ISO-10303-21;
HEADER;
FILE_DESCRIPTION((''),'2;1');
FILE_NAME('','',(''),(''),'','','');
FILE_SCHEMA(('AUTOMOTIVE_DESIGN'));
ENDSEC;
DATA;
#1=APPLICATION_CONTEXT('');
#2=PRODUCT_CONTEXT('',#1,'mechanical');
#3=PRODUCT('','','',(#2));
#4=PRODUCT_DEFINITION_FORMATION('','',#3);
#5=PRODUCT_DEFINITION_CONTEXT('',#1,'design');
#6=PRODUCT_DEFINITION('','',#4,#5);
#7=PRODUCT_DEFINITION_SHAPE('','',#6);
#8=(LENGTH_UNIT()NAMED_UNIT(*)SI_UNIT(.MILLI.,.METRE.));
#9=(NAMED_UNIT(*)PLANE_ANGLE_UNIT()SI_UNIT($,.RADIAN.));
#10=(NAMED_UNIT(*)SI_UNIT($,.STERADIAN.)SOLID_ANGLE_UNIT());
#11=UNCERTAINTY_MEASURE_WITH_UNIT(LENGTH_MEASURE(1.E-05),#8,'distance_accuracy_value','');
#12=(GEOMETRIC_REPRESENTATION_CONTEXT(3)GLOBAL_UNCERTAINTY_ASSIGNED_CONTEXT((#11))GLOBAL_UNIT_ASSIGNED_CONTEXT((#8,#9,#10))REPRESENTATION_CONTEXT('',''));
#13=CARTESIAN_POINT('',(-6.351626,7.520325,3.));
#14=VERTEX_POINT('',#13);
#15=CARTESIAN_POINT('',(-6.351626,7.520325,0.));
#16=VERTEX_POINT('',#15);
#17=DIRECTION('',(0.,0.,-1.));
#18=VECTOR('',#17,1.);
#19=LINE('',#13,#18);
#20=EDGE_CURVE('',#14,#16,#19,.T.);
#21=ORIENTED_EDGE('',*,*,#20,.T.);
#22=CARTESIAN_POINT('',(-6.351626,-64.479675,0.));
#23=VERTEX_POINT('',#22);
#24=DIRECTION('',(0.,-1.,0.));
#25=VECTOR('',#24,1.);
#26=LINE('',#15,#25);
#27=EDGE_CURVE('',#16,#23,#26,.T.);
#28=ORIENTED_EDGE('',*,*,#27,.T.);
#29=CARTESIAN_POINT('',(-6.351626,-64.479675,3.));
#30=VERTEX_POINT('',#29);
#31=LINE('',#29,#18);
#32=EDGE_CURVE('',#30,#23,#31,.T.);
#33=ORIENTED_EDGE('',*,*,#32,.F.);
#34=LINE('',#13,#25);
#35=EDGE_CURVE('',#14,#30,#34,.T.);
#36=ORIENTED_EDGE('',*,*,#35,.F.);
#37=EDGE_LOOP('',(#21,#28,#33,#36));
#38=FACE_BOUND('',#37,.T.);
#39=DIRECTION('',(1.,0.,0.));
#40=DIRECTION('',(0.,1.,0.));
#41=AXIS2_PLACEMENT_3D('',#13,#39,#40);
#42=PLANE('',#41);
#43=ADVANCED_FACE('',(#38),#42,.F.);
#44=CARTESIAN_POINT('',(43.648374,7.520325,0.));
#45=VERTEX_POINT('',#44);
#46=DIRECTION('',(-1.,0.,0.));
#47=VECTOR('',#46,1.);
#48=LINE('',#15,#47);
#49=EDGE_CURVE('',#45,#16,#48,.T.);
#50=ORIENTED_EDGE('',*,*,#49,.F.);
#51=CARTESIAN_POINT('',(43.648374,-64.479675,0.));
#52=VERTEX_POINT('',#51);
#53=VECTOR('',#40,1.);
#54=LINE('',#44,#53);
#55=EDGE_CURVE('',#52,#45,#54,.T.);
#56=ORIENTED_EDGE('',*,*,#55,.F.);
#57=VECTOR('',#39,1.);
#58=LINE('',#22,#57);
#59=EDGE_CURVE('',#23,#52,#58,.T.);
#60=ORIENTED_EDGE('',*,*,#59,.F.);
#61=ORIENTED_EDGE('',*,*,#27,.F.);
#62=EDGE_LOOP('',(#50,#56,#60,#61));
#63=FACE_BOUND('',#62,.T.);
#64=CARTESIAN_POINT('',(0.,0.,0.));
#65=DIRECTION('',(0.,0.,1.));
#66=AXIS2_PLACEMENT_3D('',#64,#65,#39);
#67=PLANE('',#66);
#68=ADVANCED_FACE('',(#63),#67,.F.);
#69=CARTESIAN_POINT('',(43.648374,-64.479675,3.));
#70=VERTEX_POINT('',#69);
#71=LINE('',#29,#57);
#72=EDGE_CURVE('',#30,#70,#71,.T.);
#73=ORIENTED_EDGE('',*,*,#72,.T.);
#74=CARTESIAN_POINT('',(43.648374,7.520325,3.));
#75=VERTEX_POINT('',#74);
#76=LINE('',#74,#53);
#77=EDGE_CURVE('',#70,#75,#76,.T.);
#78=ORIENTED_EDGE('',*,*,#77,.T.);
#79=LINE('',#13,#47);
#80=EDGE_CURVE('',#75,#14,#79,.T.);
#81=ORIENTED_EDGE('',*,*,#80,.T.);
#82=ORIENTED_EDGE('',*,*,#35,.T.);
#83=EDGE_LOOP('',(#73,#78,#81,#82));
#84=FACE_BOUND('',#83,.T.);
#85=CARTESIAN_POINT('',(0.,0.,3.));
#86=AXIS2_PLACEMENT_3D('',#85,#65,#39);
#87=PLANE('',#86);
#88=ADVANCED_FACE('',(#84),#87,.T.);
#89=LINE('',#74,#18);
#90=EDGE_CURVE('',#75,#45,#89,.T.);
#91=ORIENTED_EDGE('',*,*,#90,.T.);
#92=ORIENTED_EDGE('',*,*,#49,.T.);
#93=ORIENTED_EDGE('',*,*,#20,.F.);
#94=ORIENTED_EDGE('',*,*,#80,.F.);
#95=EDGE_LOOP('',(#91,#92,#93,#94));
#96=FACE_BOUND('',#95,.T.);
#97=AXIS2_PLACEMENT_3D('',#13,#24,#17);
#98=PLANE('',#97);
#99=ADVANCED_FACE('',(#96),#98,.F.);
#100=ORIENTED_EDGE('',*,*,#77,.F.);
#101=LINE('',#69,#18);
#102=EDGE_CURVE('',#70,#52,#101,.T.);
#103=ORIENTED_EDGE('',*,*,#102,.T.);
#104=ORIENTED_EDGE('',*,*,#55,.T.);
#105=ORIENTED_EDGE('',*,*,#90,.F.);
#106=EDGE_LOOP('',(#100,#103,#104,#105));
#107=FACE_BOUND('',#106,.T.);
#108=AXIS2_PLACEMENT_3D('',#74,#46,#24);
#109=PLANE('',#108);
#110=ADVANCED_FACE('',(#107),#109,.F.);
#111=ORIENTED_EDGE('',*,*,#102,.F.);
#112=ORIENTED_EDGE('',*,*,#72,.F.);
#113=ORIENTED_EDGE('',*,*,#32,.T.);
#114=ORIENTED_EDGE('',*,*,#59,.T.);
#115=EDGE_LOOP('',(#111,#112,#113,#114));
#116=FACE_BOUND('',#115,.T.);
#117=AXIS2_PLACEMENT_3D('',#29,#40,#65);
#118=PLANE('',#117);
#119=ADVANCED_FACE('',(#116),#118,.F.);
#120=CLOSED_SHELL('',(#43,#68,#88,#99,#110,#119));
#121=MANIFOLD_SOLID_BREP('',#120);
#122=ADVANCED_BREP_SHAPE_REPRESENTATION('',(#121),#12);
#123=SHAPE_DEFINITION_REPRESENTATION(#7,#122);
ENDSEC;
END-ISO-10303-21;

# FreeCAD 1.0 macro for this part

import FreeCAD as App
import Part
import Sketcher

V = App.Vector
Q = App.Units.Quantity

doc = App.newDocument("Part")
body = doc.addObject("PartDesign::Body", "Body")

# Sketch on XY plane
sketch1 = body.newObject("Sketcher::SketchObject", "Sketch")
sketch1.AttachmentSupport = (doc.getObject("XY_Plane"), [""])
sketch1.MapMode = "FlatFace"
sketch1.addGeometry([
    Part.LineSegment(V(-6, 8, 0), V(-6, -64, 0)),
    Part.LineSegment(V(-6, -64, 0), V(44, -64, 0)),
    Part.LineSegment(V(44, -64, 0), V(44, 8, 0)),
    Part.LineSegment(V(44, 8, 0), V(-6, 8, 0)),
], False)
sketch1.addConstraint([
    Sketcher.Constraint("Coincident", 0, 2, 1, 1),
    Sketcher.Constraint("Coincident", 1, 2, 2, 1),
    Sketcher.Constraint("Coincident", 2, 2, 3, 1),
    Sketcher.Constraint("Coincident", 3, 2, 0, 1),
    Sketcher.Constraint("Vertical", 0),
    Sketcher.Constraint("Horizontal", 1),
    Sketcher.Constraint("Vertical", 2),
    Sketcher.Constraint("Horizontal", 3),
    Sketcher.Constraint("DistanceX", 1, 1, 1, 2, Q("50 mm")),
    Sketcher.Constraint("DistanceY", 0, 2, 0, 1, Q("72 mm")),
    Sketcher.Constraint("DistanceX", 0, 2, -1, 1, Q("6.351626 mm")),
    Sketcher.Constraint("DistanceY", 0, 2, -1, 1, Q("64.479675 mm")),
])
pad1 = body.newObject("PartDesign::Pad", "Pad")
pad1.Profile = sketch1
pad1.Length = 3

doc.recompute()
